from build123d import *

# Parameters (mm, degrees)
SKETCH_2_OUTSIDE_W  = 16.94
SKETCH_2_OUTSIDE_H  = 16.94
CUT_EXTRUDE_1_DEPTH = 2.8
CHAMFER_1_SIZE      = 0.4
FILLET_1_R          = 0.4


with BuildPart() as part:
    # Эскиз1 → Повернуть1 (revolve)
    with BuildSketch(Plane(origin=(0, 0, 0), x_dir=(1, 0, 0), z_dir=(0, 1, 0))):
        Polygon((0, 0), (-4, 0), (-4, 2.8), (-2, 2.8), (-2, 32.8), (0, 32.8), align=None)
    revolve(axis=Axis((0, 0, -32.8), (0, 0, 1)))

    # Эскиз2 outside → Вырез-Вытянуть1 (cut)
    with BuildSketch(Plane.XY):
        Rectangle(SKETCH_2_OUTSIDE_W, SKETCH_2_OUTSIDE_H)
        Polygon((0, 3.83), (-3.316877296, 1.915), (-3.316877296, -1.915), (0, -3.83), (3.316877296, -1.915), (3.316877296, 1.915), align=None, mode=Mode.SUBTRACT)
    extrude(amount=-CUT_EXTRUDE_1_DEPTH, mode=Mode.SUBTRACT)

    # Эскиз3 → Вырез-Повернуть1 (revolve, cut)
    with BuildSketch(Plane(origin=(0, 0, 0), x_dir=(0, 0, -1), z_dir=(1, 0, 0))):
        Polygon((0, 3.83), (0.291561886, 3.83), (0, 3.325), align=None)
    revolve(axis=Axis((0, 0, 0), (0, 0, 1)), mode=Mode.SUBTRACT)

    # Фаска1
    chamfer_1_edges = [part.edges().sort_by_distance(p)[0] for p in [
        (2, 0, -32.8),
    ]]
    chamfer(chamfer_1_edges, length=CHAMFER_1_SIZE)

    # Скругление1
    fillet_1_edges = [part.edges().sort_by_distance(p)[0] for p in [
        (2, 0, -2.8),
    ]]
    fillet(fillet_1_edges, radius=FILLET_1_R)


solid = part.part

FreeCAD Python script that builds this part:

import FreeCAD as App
import Part
import Sketcher
Q = App.Units.Quantity


def edges_at(feature, points):
    """Names of the edges that pass closest to the given points."""
    edges = feature.Shape.Edges
    near = lambda p: min(range(len(edges)), key=lambda i: edges[i].distToShape(Part.Vertex(*p))[0])
    return sorted({f"Edge{near(p) + 1}" for p in points})

doc = App.newDocument("Part")
body = doc.addObject("PartDesign::Body", "Body")

sketch1 = doc.addObject("Sketcher::SketchObject", "Sketch")
body.addObject(sketch1)
sketch1.AttachmentSupport = (doc.XZ_Plane, [""])
sketch1.MapMode = "FlatFace"
sketch1.addGeometry([
    Part.LineSegment(App.Vector(-4, 0, 0), App.Vector(0, 0, 0)),
    Part.LineSegment(App.Vector(0, 0, 0), App.Vector(0, -32.8, 0)),
    Part.LineSegment(App.Vector(0, -32.8, 0), App.Vector(-2, -32.8, 0)),
    Part.LineSegment(App.Vector(-2, -32.8, 0), App.Vector(-2, -2.8, 0)),
    Part.LineSegment(App.Vector(-2, -2.8, 0), App.Vector(-4, -2.8, 0)),
    Part.LineSegment(App.Vector(-4, -2.8, 0), App.Vector(-4, 0, 0)),
], False)
sketch1.addConstraint([
    Sketcher.Constraint("Coincident", 0, 2, 1, 1),
    Sketcher.Constraint("Coincident", 1, 2, 2, 1),
    Sketcher.Constraint("Coincident", 2, 2, 3, 1),
    Sketcher.Constraint("Coincident", 3, 2, 4, 1),
    Sketcher.Constraint("Coincident", 4, 2, 5, 1),
    Sketcher.Constraint("Coincident", 5, 2, 0, 1),
    Sketcher.Constraint("Horizontal", 0),
    Sketcher.Constraint("Vertical", 1),
    Sketcher.Constraint("Horizontal", 2),
    Sketcher.Constraint("Vertical", 3),
    Sketcher.Constraint("Horizontal", 4),
    Sketcher.Constraint("Vertical", 5),
    Sketcher.Constraint("Coincident", 0, 2, -1, 1),
    Sketcher.Constraint("Equal", 2, 4),
    Sketcher.Constraint("DistanceX", 0, 1, 0, 2, Q("4 mm")),
    Sketcher.Constraint("DistanceY", 3, 1, 3, 2, Q("30 mm")),
    Sketcher.Constraint("DistanceY", 1, 2, 1, 1, Q("32.8 mm")),
])
revolution = doc.addObject("PartDesign::Revolution", "Revolution")
body.addObject(revolution)
revolution.Profile = sketch1
revolution.ReferenceAxis = (sketch1, ["V_Axis"])
revolution.Angle = 360

sketch2 = doc.addObject("Sketcher::SketchObject", "Sketch001")
body.addObject(sketch2)
sketch2.AttachmentSupport = (doc.XY_Plane, [""])
sketch2.MapMode = "FlatFace"
sketch2.addGeometry([
    Part.LineSegment(App.Vector(-8.5, 8.5, 0), App.Vector(-8.5, -8.5, 0)),
    Part.LineSegment(App.Vector(-8.5, -8.5, 0), App.Vector(8.5, -8.5, 0)),
    Part.LineSegment(App.Vector(8.5, -8.5, 0), App.Vector(8.5, 8.5, 0)),
    Part.LineSegment(App.Vector(8.5, 8.5, 0), App.Vector(-8.5, 8.5, 0)),
    Part.LineSegment(App.Vector(-3.3, 1.9, 0), App.Vector(0, 3.8, 0)),
    Part.LineSegment(App.Vector(0, 3.8, 0), App.Vector(3.3, 1.9, 0)),
    Part.LineSegment(App.Vector(3.3, 1.9, 0), App.Vector(3.3, -1.9, 0)),
    Part.LineSegment(App.Vector(3.3, -1.9, 0), App.Vector(0, -3.8, 0)),
    Part.LineSegment(App.Vector(0, -3.8, 0), App.Vector(-3.3, -1.9, 0)),
    Part.LineSegment(App.Vector(-3.3, -1.9, 0), App.Vector(-3.3, 1.9, 0)),
], False)
sketch2.addConstraint([
    Sketcher.Constraint("Coincident", 0, 2, 1, 1),
    Sketcher.Constraint("Coincident", 1, 2, 2, 1),
    Sketcher.Constraint("Coincident", 2, 2, 3, 1),
    Sketcher.Constraint("Coincident", 3, 2, 0, 1),
    Sketcher.Constraint("Coincident", 4, 2, 5, 1),
    Sketcher.Constraint("Coincident", 5, 2, 6, 1),
    Sketcher.Constraint("Coincident", 6, 2, 7, 1),
    Sketcher.Constraint("Coincident", 7, 2, 8, 1),
    Sketcher.Constraint("Coincident", 8, 2, 9, 1),
    Sketcher.Constraint("Coincident", 9, 2, 4, 1),
    Sketcher.Constraint("Vertical", 0),
    Sketcher.Constraint("Horizontal", 1),
    Sketcher.Constraint("Vertical", 2),
    Sketcher.Constraint("Horizontal", 3),
    Sketcher.Constraint("Vertical", 6),
    Sketcher.Constraint("Vertical", 9),
    Sketcher.Constraint("Symmetric", 0, 2, 2, 2, -1, 1),
    Sketcher.Constraint("Symmetric", 4, 2, 7, 2, -1, 1),
    Sketcher.Constraint("Symmetric", 5, 2, 8, 2, -1, 1),
    Sketcher.Constraint("PointOnObject", 4, 2, -2),
    Sketcher.Constraint("Parallel", 4, 7),
    Sketcher.Constraint("Horizontal", 6, 2, 8, 2),
    Sketcher.Constraint("Equal", 3, 0),
    Sketcher.Constraint("Angle", 4, Q("30 deg")),
    Sketcher.Constraint("DistanceX", 1, 1, 1, 2, Q("16.94 mm")),
    Sketcher.Constraint("DistanceY", 6, 2, 6, 1, Q("3.83 mm")),
    Sketcher.Constraint("DistanceY", 0, 2, 4, 2, Q("12.3 mm")),
])
pocket1 = doc.addObject("PartDesign::Pocket", "Pocket")
body.addObject(pocket1)
pocket1.Profile = sketch2
pocket1.Length = 2.8

sketch3 = doc.addObject("Sketcher::SketchObject", "Sketch002")
body.addObject(sketch3)
sketch3.AttachmentSupport = (doc.YZ_Plane, [""])
sketch3.MapMode = "FlatFace"
sketch3.addGeometry([
    Part.LineSegment(App.Vector(3.83, -0.29, 0), App.Vector(3.83, 0, 0)),
    Part.LineSegment(App.Vector(3.83, 0, 0), App.Vector(3.33, 0, 0)),
    Part.LineSegment(App.Vector(3.33, 0, 0), App.Vector(3.83, -0.29, 0)),
], False)
sketch3.addConstraint([
    Sketcher.Constraint("Coincident", 0, 2, 1, 1),
    Sketcher.Constraint("Coincident", 1, 2, 2, 1),
    Sketcher.Constraint("Coincident", 2, 2, 0, 1),
    Sketcher.Constraint("Vertical", 0),
    Sketcher.Constraint("Horizontal", 1),
    Sketcher.Constraint("PointOnObject", 0, 2, -1),
    Sketcher.Constraint("Angle", 2, Q("-30 deg")),
    Sketcher.Constraint("DistanceX", 1, 2, 1, 1, Q("0.505 mm")),
    Sketcher.Constraint("DistanceX", -1, 1, 0, 2, Q("3.83 mm")),
])
groove = doc.addObject("PartDesign::Groove", "Groove")
body.addObject(groove)
groove.Profile = sketch3
groove.ReferenceAxis = (sketch3, ["V_Axis"])
groove.Angle = 360
doc.recompute()

chamfer = doc.addObject("PartDesign::Chamfer", "Chamfer")
body.addObject(chamfer)
chamfer.Base = (groove, edges_at(groove, [(2, 0, -32.8)]))
chamfer.Size = 0.4
doc.recompute()

fillet = doc.addObject("PartDesign::Fillet", "Fillet")
body.addObject(fillet)
fillet.Base = (chamfer, edges_at(chamfer, [(2, 0, -2.8)]))
fillet.Radius = 0.4

doc.recompute()
